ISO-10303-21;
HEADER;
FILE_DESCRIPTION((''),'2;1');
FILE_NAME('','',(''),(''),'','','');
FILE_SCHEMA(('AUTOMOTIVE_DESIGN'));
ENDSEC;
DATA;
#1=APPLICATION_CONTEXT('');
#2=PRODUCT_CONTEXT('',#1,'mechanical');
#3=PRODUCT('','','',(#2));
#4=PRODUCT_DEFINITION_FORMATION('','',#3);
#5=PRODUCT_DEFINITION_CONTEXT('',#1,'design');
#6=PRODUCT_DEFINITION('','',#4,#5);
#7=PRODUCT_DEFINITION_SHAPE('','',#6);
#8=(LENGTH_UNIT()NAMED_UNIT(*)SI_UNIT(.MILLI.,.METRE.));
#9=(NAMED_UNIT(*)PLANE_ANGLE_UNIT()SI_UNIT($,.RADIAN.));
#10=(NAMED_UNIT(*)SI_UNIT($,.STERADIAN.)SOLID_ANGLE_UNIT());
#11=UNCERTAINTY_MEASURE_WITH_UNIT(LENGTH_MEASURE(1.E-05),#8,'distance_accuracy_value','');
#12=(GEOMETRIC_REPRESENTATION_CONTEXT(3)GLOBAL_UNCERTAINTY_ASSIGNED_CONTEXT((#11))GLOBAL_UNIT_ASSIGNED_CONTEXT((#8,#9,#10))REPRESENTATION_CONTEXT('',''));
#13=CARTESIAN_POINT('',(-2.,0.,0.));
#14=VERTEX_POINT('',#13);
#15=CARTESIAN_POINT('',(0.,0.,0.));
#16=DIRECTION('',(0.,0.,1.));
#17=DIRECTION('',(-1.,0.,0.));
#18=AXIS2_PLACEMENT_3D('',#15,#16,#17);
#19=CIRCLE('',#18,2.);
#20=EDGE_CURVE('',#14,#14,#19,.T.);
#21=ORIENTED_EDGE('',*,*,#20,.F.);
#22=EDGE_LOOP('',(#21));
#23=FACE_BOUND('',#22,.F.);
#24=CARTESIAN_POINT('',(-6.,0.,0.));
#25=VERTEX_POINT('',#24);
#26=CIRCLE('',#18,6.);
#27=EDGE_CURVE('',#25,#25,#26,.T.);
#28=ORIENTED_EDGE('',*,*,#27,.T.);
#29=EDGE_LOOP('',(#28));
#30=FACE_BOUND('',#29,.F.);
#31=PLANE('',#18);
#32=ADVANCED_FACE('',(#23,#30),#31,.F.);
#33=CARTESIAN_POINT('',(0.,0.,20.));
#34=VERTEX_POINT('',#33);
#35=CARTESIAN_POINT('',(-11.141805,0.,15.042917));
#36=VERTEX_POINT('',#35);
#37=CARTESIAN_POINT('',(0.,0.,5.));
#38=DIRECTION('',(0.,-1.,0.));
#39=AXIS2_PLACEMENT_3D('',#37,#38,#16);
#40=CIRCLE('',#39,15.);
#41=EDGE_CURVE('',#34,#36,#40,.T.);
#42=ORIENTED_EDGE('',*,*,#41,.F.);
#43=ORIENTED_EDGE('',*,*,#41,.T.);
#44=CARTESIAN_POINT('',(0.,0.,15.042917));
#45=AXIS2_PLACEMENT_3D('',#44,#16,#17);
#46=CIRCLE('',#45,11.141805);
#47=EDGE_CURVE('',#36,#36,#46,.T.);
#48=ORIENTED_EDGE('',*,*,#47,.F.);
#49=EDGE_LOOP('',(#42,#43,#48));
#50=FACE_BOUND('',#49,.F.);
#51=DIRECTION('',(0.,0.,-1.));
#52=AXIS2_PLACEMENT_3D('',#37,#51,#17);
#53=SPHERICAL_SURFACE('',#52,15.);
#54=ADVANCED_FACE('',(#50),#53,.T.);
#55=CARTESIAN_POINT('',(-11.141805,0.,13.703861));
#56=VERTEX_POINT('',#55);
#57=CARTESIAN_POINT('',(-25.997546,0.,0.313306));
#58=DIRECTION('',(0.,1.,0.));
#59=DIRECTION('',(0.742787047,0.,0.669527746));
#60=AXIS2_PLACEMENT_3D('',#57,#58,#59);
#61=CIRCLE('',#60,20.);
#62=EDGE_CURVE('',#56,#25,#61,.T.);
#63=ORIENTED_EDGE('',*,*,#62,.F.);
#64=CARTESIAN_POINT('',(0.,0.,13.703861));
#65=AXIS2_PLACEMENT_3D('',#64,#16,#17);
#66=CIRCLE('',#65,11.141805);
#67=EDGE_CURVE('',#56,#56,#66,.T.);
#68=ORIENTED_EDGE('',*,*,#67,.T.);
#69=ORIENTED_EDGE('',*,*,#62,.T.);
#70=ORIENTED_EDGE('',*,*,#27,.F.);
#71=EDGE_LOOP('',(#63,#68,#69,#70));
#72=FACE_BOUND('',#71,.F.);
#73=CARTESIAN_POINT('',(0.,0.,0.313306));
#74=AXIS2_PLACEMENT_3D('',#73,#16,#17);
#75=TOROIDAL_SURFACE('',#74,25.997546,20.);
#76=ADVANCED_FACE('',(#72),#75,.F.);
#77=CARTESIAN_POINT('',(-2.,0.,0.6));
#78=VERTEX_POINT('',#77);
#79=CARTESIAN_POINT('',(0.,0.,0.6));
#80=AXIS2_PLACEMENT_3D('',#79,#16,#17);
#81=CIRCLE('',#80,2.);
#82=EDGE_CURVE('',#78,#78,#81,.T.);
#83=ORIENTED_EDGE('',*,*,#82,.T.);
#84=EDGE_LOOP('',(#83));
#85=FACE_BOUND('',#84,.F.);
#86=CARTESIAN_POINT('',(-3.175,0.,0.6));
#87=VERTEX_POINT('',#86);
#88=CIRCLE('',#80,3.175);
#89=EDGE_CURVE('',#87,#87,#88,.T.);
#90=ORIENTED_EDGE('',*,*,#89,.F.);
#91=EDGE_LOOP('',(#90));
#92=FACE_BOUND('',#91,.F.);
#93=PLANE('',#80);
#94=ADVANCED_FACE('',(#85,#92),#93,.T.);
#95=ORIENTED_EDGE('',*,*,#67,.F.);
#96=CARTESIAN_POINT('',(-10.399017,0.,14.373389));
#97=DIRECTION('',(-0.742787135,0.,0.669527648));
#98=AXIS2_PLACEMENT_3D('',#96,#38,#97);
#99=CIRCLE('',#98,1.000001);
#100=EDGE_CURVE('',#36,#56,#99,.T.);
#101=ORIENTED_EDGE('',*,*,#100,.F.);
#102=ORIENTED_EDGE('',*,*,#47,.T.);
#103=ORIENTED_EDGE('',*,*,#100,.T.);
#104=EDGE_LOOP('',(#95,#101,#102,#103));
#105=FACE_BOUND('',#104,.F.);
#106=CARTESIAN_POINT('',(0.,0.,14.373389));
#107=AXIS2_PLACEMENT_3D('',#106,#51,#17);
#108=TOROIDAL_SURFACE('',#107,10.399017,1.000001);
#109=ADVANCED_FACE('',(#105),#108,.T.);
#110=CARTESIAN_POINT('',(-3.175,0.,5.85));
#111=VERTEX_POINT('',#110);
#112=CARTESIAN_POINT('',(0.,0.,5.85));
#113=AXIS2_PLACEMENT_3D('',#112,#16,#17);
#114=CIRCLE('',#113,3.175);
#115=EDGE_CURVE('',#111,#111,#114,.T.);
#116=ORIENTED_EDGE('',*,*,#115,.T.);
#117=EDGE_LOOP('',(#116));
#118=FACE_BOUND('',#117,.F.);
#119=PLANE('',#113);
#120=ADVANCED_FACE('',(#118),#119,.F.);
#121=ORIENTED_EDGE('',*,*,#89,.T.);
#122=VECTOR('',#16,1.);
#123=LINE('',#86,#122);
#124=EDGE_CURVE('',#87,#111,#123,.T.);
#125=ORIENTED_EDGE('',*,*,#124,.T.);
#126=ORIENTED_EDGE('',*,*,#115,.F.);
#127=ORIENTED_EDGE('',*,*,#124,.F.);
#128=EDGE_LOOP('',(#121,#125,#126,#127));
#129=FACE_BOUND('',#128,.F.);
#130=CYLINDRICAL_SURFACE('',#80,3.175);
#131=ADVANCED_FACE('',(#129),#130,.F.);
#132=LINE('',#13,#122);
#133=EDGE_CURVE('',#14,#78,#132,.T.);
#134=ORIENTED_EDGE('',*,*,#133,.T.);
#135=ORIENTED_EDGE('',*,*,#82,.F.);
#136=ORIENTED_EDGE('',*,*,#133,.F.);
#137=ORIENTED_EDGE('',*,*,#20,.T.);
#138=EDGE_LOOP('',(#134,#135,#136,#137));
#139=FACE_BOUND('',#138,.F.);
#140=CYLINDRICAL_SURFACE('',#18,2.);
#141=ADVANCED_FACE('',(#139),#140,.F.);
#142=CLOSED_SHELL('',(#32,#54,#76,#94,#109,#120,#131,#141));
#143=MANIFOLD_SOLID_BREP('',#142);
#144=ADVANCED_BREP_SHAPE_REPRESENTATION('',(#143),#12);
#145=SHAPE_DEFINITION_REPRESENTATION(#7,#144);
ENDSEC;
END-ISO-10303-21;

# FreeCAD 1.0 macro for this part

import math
import FreeCAD as App
import Part
import Sketcher
from FreeCAD import Vector

doc = App.newDocument("Part")
body = doc.addObject("PartDesign::Body", "Body")

sketch1 = doc.addObject("Sketcher::SketchObject", "Sketch")
body.addObject(sketch1)
sketch1.AttachmentSupport = (doc.XZ_Plane, [""])
sketch1.MapMode = "FlatFace"
sketch1.addGeometry(Part.ArcOfCircle(Part.Circle(Vector(-26, 0.3, 0), Vector(0, 0, 1), 20), math.radians(-1), math.radians(42)), False)
sketch1.addGeometry(Part.LineSegment(Vector(-6, 0, 0), Vector(-2, 0, 0)), False)
sketch1.addGeometry(Part.LineSegment(Vector(-2, 0, 0), Vector(-2, 0.6, 0)), False)
sketch1.addGeometry(Part.LineSegment(Vector(-2, 0.6, 0), Vector(-3.2, 0.6, 0)), False)
sketch1.addGeometry(Part.LineSegment(Vector(-3.2, 0.6, 0), Vector(-3.2, 5.8, 0)), False)
sketch1.addGeometry(Part.LineSegment(Vector(-3.2, 5.8, 0), Vector(0, 5.8, 0)), False)
sketch1.addGeometry(Part.LineSegment(Vector(0, 5.8, 0), Vector(0, 20, 0)), False)
sketch1.addGeometry(Part.ArcOfCircle(Part.Circle(Vector(0, 5, 0), Vector(0, 0, 1), 15), math.radians(90), math.radians(138)), False)
sketch1.addGeometry(Part.ArcOfCircle(Part.Circle(Vector(-10.4, 14.4, 0), Vector(0, 0, 1), 1), math.radians(138), math.radians(222)), False)
sketch1.addConstraint(Sketcher.Constraint("Coincident", 0, 1, 1, 1))
sketch1.addConstraint(Sketcher.Constraint("Coincident", 1, 2, 2, 1))
sketch1.addConstraint(Sketcher.Constraint("Coincident", 2, 2, 3, 1))
sketch1.addConstraint(Sketcher.Constraint("Coincident", 3, 2, 4, 1))
sketch1.addConstraint(Sketcher.Constraint("Coincident", 4, 2, 5, 1))
sketch1.addConstraint(Sketcher.Constraint("Coincident", 5, 2, 6, 1))
sketch1.addConstraint(Sketcher.Constraint("Coincident", 6, 2, 7, 1))
sketch1.addConstraint(Sketcher.Constraint("Tangent", 7, 2, 8, 1))
sketch1.addConstraint(Sketcher.Constraint("Tangent", 8, 2, 0, 2))
sketch1.addConstraint(Sketcher.Constraint("Horizontal", 1))
sketch1.addConstraint(Sketcher.Constraint("Vertical", 2))
sketch1.addConstraint(Sketcher.Constraint("Horizontal", 3))
sketch1.addConstraint(Sketcher.Constraint("Vertical", 4))
sketch1.addConstraint(Sketcher.Constraint("Horizontal", 5))
sketch1.addConstraint(Sketcher.Constraint("Vertical", 6))
sketch1.addConstraint(Sketcher.Constraint("PointOnObject", 7, 3, -2))
sketch1.addConstraint(Sketcher.Constraint("PointOnObject", 0, 1, -1))
sketch1.addConstraint(Sketcher.Constraint("PointOnObject", 5, 2, -2))
sketch1.addConstraint(Sketcher.Constraint("Vertical", 7, 2, 8, 2))
sketch1.addConstraint(Sketcher.Constraint("Radius", 0, 20.0))
sketch1.addConstraint(Sketcher.Constraint("Radius", 7, 15.0))
sketch1.addConstraint(Sketcher.Constraint("Radius", 8, 1.000001))
sketch1.addConstraint(Sketcher.Constraint("DistanceX", 1, 1, 1, 2, 4.0))
sketch1.addConstraint(Sketcher.Constraint("DistanceY", 2, 1, 2, 2, 0.6))
sketch1.addConstraint(Sketcher.Constraint("DistanceY", -1, 1, 7, 3, 5.0))
sketch1.addConstraint(Sketcher.Constraint("DistanceX", 0, 1, -1, 1, 6.0))
sketch1.addConstraint(Sketcher.Constraint("DistanceY", 4, 1, 4, 2, 5.25))
sketch1.addConstraint(Sketcher.Constraint("DistanceX", 3, 2, 3, 1, 1.175))
revolution = doc.addObject("PartDesign::Revolution", "Revolution")
body.addObject(revolution)
revolution.Profile = sketch1
revolution.ReferenceAxis = (sketch1, ["V_Axis"])
revolution.Angle = 360

doc.recompute()
